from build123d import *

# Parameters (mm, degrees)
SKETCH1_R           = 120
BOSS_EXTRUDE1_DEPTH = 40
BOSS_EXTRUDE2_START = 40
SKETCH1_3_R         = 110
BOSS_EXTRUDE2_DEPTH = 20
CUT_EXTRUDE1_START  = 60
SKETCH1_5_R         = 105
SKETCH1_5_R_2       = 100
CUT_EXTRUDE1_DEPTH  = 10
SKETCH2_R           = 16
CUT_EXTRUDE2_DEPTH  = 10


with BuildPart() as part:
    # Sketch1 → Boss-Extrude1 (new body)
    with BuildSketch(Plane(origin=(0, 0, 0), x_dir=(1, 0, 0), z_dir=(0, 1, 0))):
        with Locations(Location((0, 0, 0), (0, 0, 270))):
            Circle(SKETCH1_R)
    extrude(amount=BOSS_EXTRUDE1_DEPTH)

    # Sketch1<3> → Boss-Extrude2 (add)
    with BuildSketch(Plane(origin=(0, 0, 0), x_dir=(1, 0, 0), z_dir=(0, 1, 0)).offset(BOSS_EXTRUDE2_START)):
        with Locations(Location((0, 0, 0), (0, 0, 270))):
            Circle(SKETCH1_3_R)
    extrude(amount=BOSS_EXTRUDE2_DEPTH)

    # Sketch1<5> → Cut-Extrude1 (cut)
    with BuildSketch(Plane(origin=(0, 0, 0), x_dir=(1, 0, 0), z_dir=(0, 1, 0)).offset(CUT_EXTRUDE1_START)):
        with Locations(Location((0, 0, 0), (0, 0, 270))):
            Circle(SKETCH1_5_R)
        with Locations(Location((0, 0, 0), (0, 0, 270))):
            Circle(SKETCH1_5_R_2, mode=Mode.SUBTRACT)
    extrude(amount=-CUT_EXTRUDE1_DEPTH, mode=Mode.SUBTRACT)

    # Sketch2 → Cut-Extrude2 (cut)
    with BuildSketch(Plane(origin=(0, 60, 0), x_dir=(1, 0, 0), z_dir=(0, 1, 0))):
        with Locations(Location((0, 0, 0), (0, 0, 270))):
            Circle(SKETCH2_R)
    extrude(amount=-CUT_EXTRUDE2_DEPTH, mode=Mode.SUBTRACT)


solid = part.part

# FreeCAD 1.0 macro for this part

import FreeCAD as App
import Part
import Sketcher

V = App.Vector

doc = App.newDocument("Part")
params = doc.addObject("Spreadsheet::Sheet", "Params")
for row, (alias, value) in enumerate([
    ("sketch1_diameter", "240 mm"),
    ("pad1_length", "40 mm"),
    ("sketch2_diameter", "220 mm"),
    ("pad2_length", "20 mm"),
    ("sketch3_diameter", "210 mm"),
    ("sketch3_diameter2", "200 mm"),
    ("pocket1_length", "10 mm"),
    ("sketch4_diameter", "32 mm"),
    ("pocket2_length", "10 mm"),
], start=1):
    params.set(f"A{row}", alias)
    params.set(f"B{row}", "=" + value)
    params.setAlias(f"B{row}", alias)

body = doc.addObject("PartDesign::Body", "Body")

# Sketch on XZ plane
sketch1 = body.newObject("Sketcher::SketchObject", "Sketch")
sketch1.AttachmentSupport = (doc.getObject("XZ_Plane"), [""])
sketch1.MapMode = "FlatFace"
sketch1.addGeometry(Part.Circle(V(0, 0, 0), V(0, 0, 1), 120), False)
sketch1.addConstraint([
    Sketcher.Constraint("Coincident", 0, 3, -1, 1),
    Sketcher.Constraint("Diameter", 0, 240.0),
])
sketch1.setExpression("Constraints[1]", "Params.sketch1_diameter")
pad1 = body.newObject("PartDesign::Pad", "Pad")
pad1.Profile = sketch1
pad1.setExpression("Length", "Params.pad1_length")
pad1.Reversed = True

# Sketch on XZ plane
sketch2 = body.newObject("Sketcher::SketchObject", "Sketch001")
sketch2.AttachmentSupport = (doc.getObject("XZ_Plane"), [""])
sketch2.MapMode = "FlatFace"
sketch2.AttachmentOffset = App.Placement(V(0, 0, -40), App.Rotation())
sketch2.addGeometry(Part.Circle(V(0, 0, 0), V(0, 0, 1), 110), False)
sketch2.addConstraint([
    Sketcher.Constraint("Coincident", 0, 3, -1, 1),
    Sketcher.Constraint("Diameter", 0, 220.0),
])
sketch2.setExpression("Constraints[1]", "Params.sketch2_diameter")
pad2 = body.newObject("PartDesign::Pad", "Pad001")
pad2.Profile = sketch2
pad2.setExpression("Length", "Params.pad2_length")
pad2.Reversed = True

# Sketch on XZ plane
sketch3 = body.newObject("Sketcher::SketchObject", "Sketch002")
sketch3.AttachmentSupport = (doc.getObject("XZ_Plane"), [""])
sketch3.MapMode = "FlatFace"
sketch3.AttachmentOffset = App.Placement(V(0, 0, -60), App.Rotation())
sketch3.addGeometry([
    Part.Circle(V(0, 0, 0), V(0, 0, 1), 105),
    Part.Circle(V(0, 0, 0), V(0, 0, 1), 100),
], False)
sketch3.addConstraint([
    Sketcher.Constraint("Coincident", 0, 3, -1, 1),
    Sketcher.Constraint("Coincident", 1, 3, -1, 1),
    Sketcher.Constraint("Diameter", 0, 210.0),
    Sketcher.Constraint("Diameter", 1, 200.0),
])
sketch3.setExpression("Constraints[2]", "Params.sketch3_diameter")
sketch3.setExpression("Constraints[3]", "Params.sketch3_diameter2")
pocket1 = body.newObject("PartDesign::Pocket", "Pocket")
pocket1.Profile = sketch3
pocket1.setExpression("Length", "Params.pocket1_length")
pocket1.Reversed = True

# Sketch on XZ plane
sketch4 = body.newObject("Sketcher::SketchObject", "Sketch003")
sketch4.AttachmentSupport = (doc.getObject("XZ_Plane"), [""])
sketch4.MapMode = "FlatFace"
sketch4.AttachmentOffset = App.Placement(V(0, 0, -60), App.Rotation())
sketch4.addGeometry(Part.Circle(V(0, 0, 0), V(0, 0, 1), 16), False)
sketch4.addConstraint([
    Sketcher.Constraint("Coincident", 0, 3, -1, 1),
    Sketcher.Constraint("Diameter", 0, 32.0),
])
sketch4.setExpression("Constraints[1]", "Params.sketch4_diameter")
pocket2 = body.newObject("PartDesign::Pocket", "Pocket001")
pocket2.Profile = sketch4
pocket2.setExpression("Length", "Params.pocket2_length")
pocket2.Reversed = True

doc.recompute()
